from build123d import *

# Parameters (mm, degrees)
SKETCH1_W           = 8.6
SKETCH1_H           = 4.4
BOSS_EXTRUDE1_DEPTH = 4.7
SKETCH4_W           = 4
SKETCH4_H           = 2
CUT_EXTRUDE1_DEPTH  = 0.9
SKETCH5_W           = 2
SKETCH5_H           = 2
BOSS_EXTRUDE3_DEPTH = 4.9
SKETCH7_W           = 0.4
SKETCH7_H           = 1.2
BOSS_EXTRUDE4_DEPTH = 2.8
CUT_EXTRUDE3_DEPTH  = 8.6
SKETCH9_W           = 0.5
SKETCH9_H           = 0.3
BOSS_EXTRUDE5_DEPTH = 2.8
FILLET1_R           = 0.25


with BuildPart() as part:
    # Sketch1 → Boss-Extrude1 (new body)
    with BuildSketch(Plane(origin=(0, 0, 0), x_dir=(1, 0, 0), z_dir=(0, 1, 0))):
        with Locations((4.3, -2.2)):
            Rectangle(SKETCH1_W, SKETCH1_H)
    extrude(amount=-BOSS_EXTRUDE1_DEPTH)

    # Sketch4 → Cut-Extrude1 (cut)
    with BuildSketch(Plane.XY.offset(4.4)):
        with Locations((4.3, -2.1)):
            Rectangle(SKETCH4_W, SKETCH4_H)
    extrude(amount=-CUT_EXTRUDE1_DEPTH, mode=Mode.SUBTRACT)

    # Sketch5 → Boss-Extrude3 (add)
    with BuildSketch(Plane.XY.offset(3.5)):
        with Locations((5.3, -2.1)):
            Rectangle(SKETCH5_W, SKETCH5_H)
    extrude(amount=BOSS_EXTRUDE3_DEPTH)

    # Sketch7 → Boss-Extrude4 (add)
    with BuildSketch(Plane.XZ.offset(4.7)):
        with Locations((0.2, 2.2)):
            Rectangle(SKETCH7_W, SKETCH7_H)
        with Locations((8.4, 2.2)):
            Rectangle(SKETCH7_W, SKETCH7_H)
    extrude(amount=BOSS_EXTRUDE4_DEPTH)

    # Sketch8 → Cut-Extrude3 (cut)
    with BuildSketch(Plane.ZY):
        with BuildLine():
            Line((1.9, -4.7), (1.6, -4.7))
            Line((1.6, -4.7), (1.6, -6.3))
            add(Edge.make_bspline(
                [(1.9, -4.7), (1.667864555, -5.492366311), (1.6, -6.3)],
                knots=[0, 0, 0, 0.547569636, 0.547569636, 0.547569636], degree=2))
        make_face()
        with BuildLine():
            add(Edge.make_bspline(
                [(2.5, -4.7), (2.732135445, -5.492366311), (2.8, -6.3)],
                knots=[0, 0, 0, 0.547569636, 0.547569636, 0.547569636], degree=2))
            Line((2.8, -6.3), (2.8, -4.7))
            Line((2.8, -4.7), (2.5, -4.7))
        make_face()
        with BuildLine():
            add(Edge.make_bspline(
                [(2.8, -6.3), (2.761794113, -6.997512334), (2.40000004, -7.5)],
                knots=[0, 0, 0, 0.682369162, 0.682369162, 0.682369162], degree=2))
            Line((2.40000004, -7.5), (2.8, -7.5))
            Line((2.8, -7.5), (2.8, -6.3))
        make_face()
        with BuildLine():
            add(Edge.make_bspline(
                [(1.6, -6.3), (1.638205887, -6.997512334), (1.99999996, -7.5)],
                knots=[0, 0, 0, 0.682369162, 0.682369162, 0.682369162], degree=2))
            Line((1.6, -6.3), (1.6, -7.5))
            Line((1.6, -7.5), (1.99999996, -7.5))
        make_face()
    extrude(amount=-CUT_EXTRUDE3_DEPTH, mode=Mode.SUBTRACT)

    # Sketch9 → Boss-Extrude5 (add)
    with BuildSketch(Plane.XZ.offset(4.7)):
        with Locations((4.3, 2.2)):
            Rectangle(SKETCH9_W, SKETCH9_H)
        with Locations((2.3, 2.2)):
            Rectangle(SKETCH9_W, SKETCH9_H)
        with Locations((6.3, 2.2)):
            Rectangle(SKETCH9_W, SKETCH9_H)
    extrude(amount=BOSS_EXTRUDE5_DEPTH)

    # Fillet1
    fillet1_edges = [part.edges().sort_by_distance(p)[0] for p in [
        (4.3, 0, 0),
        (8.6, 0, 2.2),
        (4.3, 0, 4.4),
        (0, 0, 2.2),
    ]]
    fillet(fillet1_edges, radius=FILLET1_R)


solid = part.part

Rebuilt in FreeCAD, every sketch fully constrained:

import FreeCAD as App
import Part
import Sketcher


def edges_at(feature, points):
    """Names of the edges that pass closest to the given points."""
    edges = feature.Shape.Edges
    near = lambda p: min(range(len(edges)), key=lambda i: edges[i].distToShape(Part.Vertex(*p))[0])
    return sorted({f"Edge{near(p) + 1}" for p in points})

doc = App.newDocument("Part")
body = doc.addObject("PartDesign::Body", "Body")

sketch1 = body.newObject("Sketcher::SketchObject", "Sketch")
sketch1.AttachmentSupport = (doc.getObject("XZ_Plane"), [""])
sketch1.MapMode = "FlatFace"
sketch1.addGeometry([
    Part.LineSegment(App.Vector(0, 0, 0), App.Vector(0, 4.4, 0)),
    Part.LineSegment(App.Vector(0, 4.4, 0), App.Vector(8.6, 4.4, 0)),
    Part.LineSegment(App.Vector(8.6, 4.4, 0), App.Vector(8.6, 0, 0)),
    Part.LineSegment(App.Vector(8.6, 0, 0), App.Vector(0, 0, 0)),
], False)
sketch1.addConstraint([
    Sketcher.Constraint("Coincident", 0, 2, 1, 1),
    Sketcher.Constraint("Coincident", 1, 2, 2, 1),
    Sketcher.Constraint("Coincident", 2, 2, 3, 1),
    Sketcher.Constraint("Coincident", 3, 2, 0, 1),
    Sketcher.Constraint("Vertical", 0),
    Sketcher.Constraint("Horizontal", 1),
    Sketcher.Constraint("Vertical", 2),
    Sketcher.Constraint("Horizontal", 3),
    Sketcher.Constraint("Coincident", 3, 2, -1, 1),
    Sketcher.Constraint("DistanceX", 1, 1, 1, 2, 8.6),
    Sketcher.Constraint("DistanceY", 0, 1, 0, 2, 4.4),
])
pad1 = body.newObject("PartDesign::Pad", "Pad")
pad1.Profile = sketch1
pad1.Length = 4.7

sketch2 = body.newObject("Sketcher::SketchObject", "Sketch001")
sketch2.AttachmentSupport = (doc.getObject("XY_Plane"), [""])
sketch2.MapMode = "FlatFace"
sketch2.AttachmentOffset = App.Placement(App.Vector(0, 0, 4.4), App.Rotation())
sketch2.addGeometry([
    Part.LineSegment(App.Vector(2.3, -1.1, 0), App.Vector(2.3, -3.1, 0)),
    Part.LineSegment(App.Vector(2.3, -3.1, 0), App.Vector(6.3, -3.1, 0)),
    Part.LineSegment(App.Vector(6.3, -3.1, 0), App.Vector(6.3, -1.1, 0)),
    Part.LineSegment(App.Vector(6.3, -1.1, 0), App.Vector(2.3, -1.1, 0)),
], False)
sketch2.addConstraint([
    Sketcher.Constraint("Coincident", 0, 2, 1, 1),
    Sketcher.Constraint("Coincident", 1, 2, 2, 1),
    Sketcher.Constraint("Coincident", 2, 2, 3, 1),
    Sketcher.Constraint("Coincident", 3, 2, 0, 1),
    Sketcher.Constraint("Vertical", 0),
    Sketcher.Constraint("Horizontal", 1),
    Sketcher.Constraint("Vertical", 2),
    Sketcher.Constraint("Horizontal", 3),
    Sketcher.Constraint("DistanceX", 1, 1, 1, 2, 4.0),
    Sketcher.Constraint("DistanceY", 0, 2, 0, 1, 2.0),
    Sketcher.Constraint("DistanceX", -1, 1, 0, 2, 2.3),
    Sketcher.Constraint("DistanceY", 0, 2, -1, 1, 3.1),
])
pocket1 = body.newObject("PartDesign::Pocket", "Pocket")
pocket1.Profile = sketch2
pocket1.Length = 0.9

sketch3 = body.newObject("Sketcher::SketchObject", "Sketch002")
sketch3.AttachmentSupport = (doc.getObject("XY_Plane"), [""])
sketch3.MapMode = "FlatFace"
sketch3.AttachmentOffset = App.Placement(App.Vector(0, 0, 3.5), App.Rotation())
sketch3.addGeometry([
    Part.LineSegment(App.Vector(4.3, -1.1, 0), App.Vector(4.3, -3.1, 0)),
    Part.LineSegment(App.Vector(4.3, -3.1, 0), App.Vector(6.3, -3.1, 0)),
    Part.LineSegment(App.Vector(6.3, -3.1, 0), App.Vector(6.3, -1.1, 0)),
    Part.LineSegment(App.Vector(6.3, -1.1, 0), App.Vector(4.3, -1.1, 0)),
], False)
sketch3.addConstraint([
    Sketcher.Constraint("Coincident", 0, 2, 1, 1),
    Sketcher.Constraint("Coincident", 1, 2, 2, 1),
    Sketcher.Constraint("Coincident", 2, 2, 3, 1),
    Sketcher.Constraint("Coincident", 3, 2, 0, 1),
    Sketcher.Constraint("Vertical", 0),
    Sketcher.Constraint("Horizontal", 1),
    Sketcher.Constraint("Vertical", 2),
    Sketcher.Constraint("Horizontal", 3),
    Sketcher.Constraint("Equal", 3, 0),
    Sketcher.Constraint("DistanceX", 1, 1, 1, 2, 2.0),
    Sketcher.Constraint("DistanceX", -1, 1, 0, 2, 4.3),
    Sketcher.Constraint("DistanceY", 0, 2, -1, 1, 3.1),
])
pad2 = body.newObject("PartDesign::Pad", "Pad001")
pad2.Profile = sketch3
pad2.Length = 4.9

sketch4 = body.newObject("Sketcher::SketchObject", "Sketch003")
sketch4.AttachmentSupport = (doc.getObject("XZ_Plane"), [""])
sketch4.MapMode = "FlatFace"
sketch4.AttachmentOffset = App.Placement(App.Vector(0, 0, 4.7), App.Rotation())
sketch4.addGeometry([
    Part.LineSegment(App.Vector(0, 2.8, 0), App.Vector(0, 1.6, 0)),
    Part.LineSegment(App.Vector(0, 1.6, 0), App.Vector(0.4, 1.6, 0)),
    Part.LineSegment(App.Vector(0.4, 1.6, 0), App.Vector(0.4, 2.8, 0)),
    Part.LineSegment(App.Vector(0.4, 2.8, 0), App.Vector(0, 2.8, 0)),
    Part.LineSegment(App.Vector(8.2, 2.8, 0), App.Vector(8.2, 1.6, 0)),
    Part.LineSegment(App.Vector(8.2, 1.6, 0), App.Vector(8.6, 1.6, 0)),
    Part.LineSegment(App.Vector(8.6, 1.6, 0), App.Vector(8.6, 2.8, 0)),
    Part.LineSegment(App.Vector(8.6, 2.8, 0), App.Vector(8.2, 2.8, 0)),
], False)
sketch4.addConstraint([
    Sketcher.Constraint("Coincident", 0, 2, 1, 1),
    Sketcher.Constraint("Coincident", 1, 2, 2, 1),
    Sketcher.Constraint("Coincident", 2, 2, 3, 1),
    Sketcher.Constraint("Coincident", 3, 2, 0, 1),
    Sketcher.Constraint("Coincident", 4, 2, 5, 1),
    Sketcher.Constraint("Coincident", 5, 2, 6, 1),
    Sketcher.Constraint("Coincident", 6, 2, 7, 1),
    Sketcher.Constraint("Coincident", 7, 2, 4, 1),
    Sketcher.Constraint("Vertical", 0),
    Sketcher.Constraint("Horizontal", 1),
    Sketcher.Constraint("Vertical", 2),
    Sketcher.Constraint("Horizontal", 3),
    Sketcher.Constraint("Vertical", 4),
    Sketcher.Constraint("Horizontal", 5),
    Sketcher.Constraint("Vertical", 6),
    Sketcher.Constraint("Horizontal", 7),
    Sketcher.Constraint("PointOnObject", 0, 2, -2),
    Sketcher.Constraint("Horizontal", 1, 2, 4, 2),
    Sketcher.Constraint("Horizontal", 3, 2, 6, 2),
    Sketcher.Constraint("Equal", 3, 5),
    Sketcher.Constraint("DistanceX", 1, 1, 1, 2, 0.4),
    Sketcher.Constraint("DistanceY", 0, 2, 0, 1, 1.2),
    Sketcher.Constraint("DistanceY", -1, 1, 0, 2, 1.6),
    Sketcher.Constraint("DistanceX", -1, 1, 4, 2, 8.2),
])
pad3 = body.newObject("PartDesign::Pad", "Pad002")
pad3.Profile = sketch4
pad3.Length = 2.8

sketch5 = body.newObject("Sketcher::SketchObject", "Sketch004")
sketch5.AttachmentSupport = (doc.getObject("YZ_Plane"), [""])
sketch5.MapMode = "FlatFace"
sketch5.addGeometry([
    Part.LineSegment(App.Vector(-4.7, 1.9, 0), App.Vector(-4.7, 1.6, 0)),
    Part.LineSegment(App.Vector(-4.7, 1.6, 0), App.Vector(-6.3, 1.6, 0)),
    Part.BSplineCurve([App.Vector(-4.7, 1.9, 0), App.Vector(-5.492366, 1.667865, 0), App.Vector(-6.3, 1.6, 0)], [3, 3], [0, 0.547569636], False, 2, [1, 1, 1], False),
    Part.BSplineCurve([App.Vector(-4.7, 2.5, 0), App.Vector(-5.492366, 2.732135, 0), App.Vector(-6.3, 2.8, 0)], [3, 3], [0, 0.547569636], False, 2, [1, 1, 1], False),
    Part.LineSegment(App.Vector(-6.3, 2.8, 0), App.Vector(-4.7, 2.8, 0)),
    Part.LineSegment(App.Vector(-4.7, 2.8, 0), App.Vector(-4.7, 2.5, 0)),
    Part.BSplineCurve([App.Vector(-6.3, 2.8, 0), App.Vector(-6.997512, 2.761794, 0), App.Vector(-7.5, 2.4, 0)], [3, 3], [0, 0.682369162], False, 2, [1, 1, 1], False),
    Part.LineSegment(App.Vector(-7.5, 2.4, 0), App.Vector(-7.5, 2.8, 0)),
    Part.LineSegment(App.Vector(-7.5, 2.8, 0), App.Vector(-6.3, 2.8, 0)),
    Part.BSplineCurve([App.Vector(-6.3, 1.6, 0), App.Vector(-6.997512, 1.638206, 0), App.Vector(-7.5, 2, 0)], [3, 3], [0, 0.682369162], False, 2, [1, 1, 1], False),
    Part.LineSegment(App.Vector(-6.3, 1.6, 0), App.Vector(-7.5, 1.6, 0)),
    Part.LineSegment(App.Vector(-7.5, 1.6, 0), App.Vector(-7.5, 2, 0)),
], False)
sketch5.addConstraint([
    Sketcher.Constraint("Block", 2),
    Sketcher.Constraint("Block", 3),
    Sketcher.Constraint("Block", 6),
    Sketcher.Constraint("Block", 9),
    Sketcher.Constraint("Coincident", 0, 2, 1, 1),
    Sketcher.Constraint("Coincident", 1, 2, 2, 2),
    Sketcher.Constraint("Coincident", 2, 1, 0, 1),
    Sketcher.Constraint("Coincident", 3, 2, 4, 1),
    Sketcher.Constraint("Coincident", 4, 2, 5, 1),
    Sketcher.Constraint("Coincident", 5, 2, 3, 1),
    Sketcher.Constraint("Coincident", 6, 2, 7, 1),
    Sketcher.Constraint("Coincident", 7, 2, 8, 1),
    Sketcher.Constraint("Coincident", 8, 2, 6, 1),
    Sketcher.Constraint("Coincident", 9, 1, 10, 1),
    Sketcher.Constraint("Coincident", 10, 2, 11, 1),
    Sketcher.Constraint("Coincident", 11, 2, 9, 2),
    Sketcher.Constraint("Vertical", 0),
    Sketcher.Constraint("Horizontal", 1),
    Sketcher.Constraint("Horizontal", 4),
    Sketcher.Constraint("Vertical", 5),
    Sketcher.Constraint("Vertical", 7),
    Sketcher.Constraint("Horizontal", 8),
    Sketcher.Constraint("Horizontal", 10),
    Sketcher.Constraint("Vertical", 11),
])
pocket2 = body.newObject("PartDesign::Pocket", "Pocket001")
pocket2.Profile = sketch5
pocket2.Length = 8.6
pocket2.Reversed = True

sketch6 = body.newObject("Sketcher::SketchObject", "Sketch005")
sketch6.AttachmentSupport = (doc.getObject("XZ_Plane"), [""])
sketch6.MapMode = "FlatFace"
sketch6.AttachmentOffset = App.Placement(App.Vector(0, 0, 4.7), App.Rotation())
sketch6.addGeometry([
    Part.LineSegment(App.Vector(4.05, 2.35, 0), App.Vector(4.05, 2.05, 0)),
    Part.LineSegment(App.Vector(4.05, 2.05, 0), App.Vector(4.55, 2.05, 0)),
    Part.LineSegment(App.Vector(4.55, 2.05, 0), App.Vector(4.55, 2.35, 0)),
    Part.LineSegment(App.Vector(4.55, 2.35, 0), App.Vector(4.05, 2.35, 0)),
    Part.LineSegment(App.Vector(2.05, 2.35, 0), App.Vector(2.05, 2.05, 0)),
    Part.LineSegment(App.Vector(2.05, 2.05, 0), App.Vector(2.55, 2.05, 0)),
    Part.LineSegment(App.Vector(2.55, 2.05, 0), App.Vector(2.55, 2.35, 0)),
    Part.LineSegment(App.Vector(2.55, 2.35, 0), App.Vector(2.05, 2.35, 0)),
    Part.LineSegment(App.Vector(6.05, 2.35, 0), App.Vector(6.05, 2.05, 0)),
    Part.LineSegment(App.Vector(6.05, 2.05, 0), App.Vector(6.55, 2.05, 0)),
    Part.LineSegment(App.Vector(6.55, 2.05, 0), App.Vector(6.55, 2.35, 0)),
    Part.LineSegment(App.Vector(6.55, 2.35, 0), App.Vector(6.05, 2.35, 0)),
], False)
sketch6.addConstraint([
    Sketcher.Constraint("Coincident", 0, 2, 1, 1),
    Sketcher.Constraint("Coincident", 1, 2, 2, 1),
    Sketcher.Constraint("Coincident", 2, 2, 3, 1),
    Sketcher.Constraint("Coincident", 3, 2, 0, 1),
    Sketcher.Constraint("Coincident", 4, 2, 5, 1),
    Sketcher.Constraint("Coincident", 5, 2, 6, 1),
    Sketcher.Constraint("Coincident", 6, 2, 7, 1),
    Sketcher.Constraint("Coincident", 7, 2, 4, 1),
    Sketcher.Constraint("Coincident", 8, 2, 9, 1),
    Sketcher.Constraint("Coincident", 9, 2, 10, 1),
    Sketcher.Constraint("Coincident", 10, 2, 11, 1),
    Sketcher.Constraint("Coincident", 11, 2, 8, 1),
    Sketcher.Constraint("Vertical", 0),
    Sketcher.Constraint("Horizontal", 1),
    Sketcher.Constraint("Vertical", 2),
    Sketcher.Constraint("Horizontal", 3),
    Sketcher.Constraint("Vertical", 4),
    Sketcher.Constraint("Horizontal", 5),
    Sketcher.Constraint("Vertical", 6),
    Sketcher.Constraint("Horizontal", 7),
    Sketcher.Constraint("Vertical", 8),
    Sketcher.Constraint("Horizontal", 9),
    Sketcher.Constraint("Vertical", 10),
    Sketcher.Constraint("Horizontal", 11),
    Sketcher.Constraint("Horizontal", 1, 2, 4, 2),
    Sketcher.Constraint("Horizontal", 3, 2, 6, 2),
    Sketcher.Constraint("Horizontal", 5, 2, 8, 2),
    Sketcher.Constraint("Horizontal", 7, 2, 10, 2),
    Sketcher.Constraint("Equal", 3, 5),
    Sketcher.Constraint("Equal", 7, 9),
    Sketcher.Constraint("DistanceX", 1, 1, 1, 2, 0.5),
    Sketcher.Constraint("DistanceY", 0, 2, 0, 1, 0.3),
    Sketcher.Constraint("DistanceX", 4, 2, 0, 2, 2.0),
    Sketcher.Constraint("DistanceX", 0, 2, 8, 2, 2.0),
    Sketcher.Constraint("DistanceX", -1, 1, 0, 2, 4.05),
    Sketcher.Constraint("DistanceY", -1, 1, 0, 2, 2.05),
])
pad4 = body.newObject("PartDesign::Pad", "Pad003")
pad4.Profile = sketch6
pad4.Length = 2.8
doc.recompute()

fillet = body.newObject("PartDesign::Fillet", "Fillet")
fillet.Base = (pad4, edges_at(pad4, [
    (4.3, 0, 0),
    (8.6, 0, 2.2),
    (4.3, 0, 4.4),
    (0, 0, 2.2),
]))
fillet.Radius = 0.25

doc.recompute()
